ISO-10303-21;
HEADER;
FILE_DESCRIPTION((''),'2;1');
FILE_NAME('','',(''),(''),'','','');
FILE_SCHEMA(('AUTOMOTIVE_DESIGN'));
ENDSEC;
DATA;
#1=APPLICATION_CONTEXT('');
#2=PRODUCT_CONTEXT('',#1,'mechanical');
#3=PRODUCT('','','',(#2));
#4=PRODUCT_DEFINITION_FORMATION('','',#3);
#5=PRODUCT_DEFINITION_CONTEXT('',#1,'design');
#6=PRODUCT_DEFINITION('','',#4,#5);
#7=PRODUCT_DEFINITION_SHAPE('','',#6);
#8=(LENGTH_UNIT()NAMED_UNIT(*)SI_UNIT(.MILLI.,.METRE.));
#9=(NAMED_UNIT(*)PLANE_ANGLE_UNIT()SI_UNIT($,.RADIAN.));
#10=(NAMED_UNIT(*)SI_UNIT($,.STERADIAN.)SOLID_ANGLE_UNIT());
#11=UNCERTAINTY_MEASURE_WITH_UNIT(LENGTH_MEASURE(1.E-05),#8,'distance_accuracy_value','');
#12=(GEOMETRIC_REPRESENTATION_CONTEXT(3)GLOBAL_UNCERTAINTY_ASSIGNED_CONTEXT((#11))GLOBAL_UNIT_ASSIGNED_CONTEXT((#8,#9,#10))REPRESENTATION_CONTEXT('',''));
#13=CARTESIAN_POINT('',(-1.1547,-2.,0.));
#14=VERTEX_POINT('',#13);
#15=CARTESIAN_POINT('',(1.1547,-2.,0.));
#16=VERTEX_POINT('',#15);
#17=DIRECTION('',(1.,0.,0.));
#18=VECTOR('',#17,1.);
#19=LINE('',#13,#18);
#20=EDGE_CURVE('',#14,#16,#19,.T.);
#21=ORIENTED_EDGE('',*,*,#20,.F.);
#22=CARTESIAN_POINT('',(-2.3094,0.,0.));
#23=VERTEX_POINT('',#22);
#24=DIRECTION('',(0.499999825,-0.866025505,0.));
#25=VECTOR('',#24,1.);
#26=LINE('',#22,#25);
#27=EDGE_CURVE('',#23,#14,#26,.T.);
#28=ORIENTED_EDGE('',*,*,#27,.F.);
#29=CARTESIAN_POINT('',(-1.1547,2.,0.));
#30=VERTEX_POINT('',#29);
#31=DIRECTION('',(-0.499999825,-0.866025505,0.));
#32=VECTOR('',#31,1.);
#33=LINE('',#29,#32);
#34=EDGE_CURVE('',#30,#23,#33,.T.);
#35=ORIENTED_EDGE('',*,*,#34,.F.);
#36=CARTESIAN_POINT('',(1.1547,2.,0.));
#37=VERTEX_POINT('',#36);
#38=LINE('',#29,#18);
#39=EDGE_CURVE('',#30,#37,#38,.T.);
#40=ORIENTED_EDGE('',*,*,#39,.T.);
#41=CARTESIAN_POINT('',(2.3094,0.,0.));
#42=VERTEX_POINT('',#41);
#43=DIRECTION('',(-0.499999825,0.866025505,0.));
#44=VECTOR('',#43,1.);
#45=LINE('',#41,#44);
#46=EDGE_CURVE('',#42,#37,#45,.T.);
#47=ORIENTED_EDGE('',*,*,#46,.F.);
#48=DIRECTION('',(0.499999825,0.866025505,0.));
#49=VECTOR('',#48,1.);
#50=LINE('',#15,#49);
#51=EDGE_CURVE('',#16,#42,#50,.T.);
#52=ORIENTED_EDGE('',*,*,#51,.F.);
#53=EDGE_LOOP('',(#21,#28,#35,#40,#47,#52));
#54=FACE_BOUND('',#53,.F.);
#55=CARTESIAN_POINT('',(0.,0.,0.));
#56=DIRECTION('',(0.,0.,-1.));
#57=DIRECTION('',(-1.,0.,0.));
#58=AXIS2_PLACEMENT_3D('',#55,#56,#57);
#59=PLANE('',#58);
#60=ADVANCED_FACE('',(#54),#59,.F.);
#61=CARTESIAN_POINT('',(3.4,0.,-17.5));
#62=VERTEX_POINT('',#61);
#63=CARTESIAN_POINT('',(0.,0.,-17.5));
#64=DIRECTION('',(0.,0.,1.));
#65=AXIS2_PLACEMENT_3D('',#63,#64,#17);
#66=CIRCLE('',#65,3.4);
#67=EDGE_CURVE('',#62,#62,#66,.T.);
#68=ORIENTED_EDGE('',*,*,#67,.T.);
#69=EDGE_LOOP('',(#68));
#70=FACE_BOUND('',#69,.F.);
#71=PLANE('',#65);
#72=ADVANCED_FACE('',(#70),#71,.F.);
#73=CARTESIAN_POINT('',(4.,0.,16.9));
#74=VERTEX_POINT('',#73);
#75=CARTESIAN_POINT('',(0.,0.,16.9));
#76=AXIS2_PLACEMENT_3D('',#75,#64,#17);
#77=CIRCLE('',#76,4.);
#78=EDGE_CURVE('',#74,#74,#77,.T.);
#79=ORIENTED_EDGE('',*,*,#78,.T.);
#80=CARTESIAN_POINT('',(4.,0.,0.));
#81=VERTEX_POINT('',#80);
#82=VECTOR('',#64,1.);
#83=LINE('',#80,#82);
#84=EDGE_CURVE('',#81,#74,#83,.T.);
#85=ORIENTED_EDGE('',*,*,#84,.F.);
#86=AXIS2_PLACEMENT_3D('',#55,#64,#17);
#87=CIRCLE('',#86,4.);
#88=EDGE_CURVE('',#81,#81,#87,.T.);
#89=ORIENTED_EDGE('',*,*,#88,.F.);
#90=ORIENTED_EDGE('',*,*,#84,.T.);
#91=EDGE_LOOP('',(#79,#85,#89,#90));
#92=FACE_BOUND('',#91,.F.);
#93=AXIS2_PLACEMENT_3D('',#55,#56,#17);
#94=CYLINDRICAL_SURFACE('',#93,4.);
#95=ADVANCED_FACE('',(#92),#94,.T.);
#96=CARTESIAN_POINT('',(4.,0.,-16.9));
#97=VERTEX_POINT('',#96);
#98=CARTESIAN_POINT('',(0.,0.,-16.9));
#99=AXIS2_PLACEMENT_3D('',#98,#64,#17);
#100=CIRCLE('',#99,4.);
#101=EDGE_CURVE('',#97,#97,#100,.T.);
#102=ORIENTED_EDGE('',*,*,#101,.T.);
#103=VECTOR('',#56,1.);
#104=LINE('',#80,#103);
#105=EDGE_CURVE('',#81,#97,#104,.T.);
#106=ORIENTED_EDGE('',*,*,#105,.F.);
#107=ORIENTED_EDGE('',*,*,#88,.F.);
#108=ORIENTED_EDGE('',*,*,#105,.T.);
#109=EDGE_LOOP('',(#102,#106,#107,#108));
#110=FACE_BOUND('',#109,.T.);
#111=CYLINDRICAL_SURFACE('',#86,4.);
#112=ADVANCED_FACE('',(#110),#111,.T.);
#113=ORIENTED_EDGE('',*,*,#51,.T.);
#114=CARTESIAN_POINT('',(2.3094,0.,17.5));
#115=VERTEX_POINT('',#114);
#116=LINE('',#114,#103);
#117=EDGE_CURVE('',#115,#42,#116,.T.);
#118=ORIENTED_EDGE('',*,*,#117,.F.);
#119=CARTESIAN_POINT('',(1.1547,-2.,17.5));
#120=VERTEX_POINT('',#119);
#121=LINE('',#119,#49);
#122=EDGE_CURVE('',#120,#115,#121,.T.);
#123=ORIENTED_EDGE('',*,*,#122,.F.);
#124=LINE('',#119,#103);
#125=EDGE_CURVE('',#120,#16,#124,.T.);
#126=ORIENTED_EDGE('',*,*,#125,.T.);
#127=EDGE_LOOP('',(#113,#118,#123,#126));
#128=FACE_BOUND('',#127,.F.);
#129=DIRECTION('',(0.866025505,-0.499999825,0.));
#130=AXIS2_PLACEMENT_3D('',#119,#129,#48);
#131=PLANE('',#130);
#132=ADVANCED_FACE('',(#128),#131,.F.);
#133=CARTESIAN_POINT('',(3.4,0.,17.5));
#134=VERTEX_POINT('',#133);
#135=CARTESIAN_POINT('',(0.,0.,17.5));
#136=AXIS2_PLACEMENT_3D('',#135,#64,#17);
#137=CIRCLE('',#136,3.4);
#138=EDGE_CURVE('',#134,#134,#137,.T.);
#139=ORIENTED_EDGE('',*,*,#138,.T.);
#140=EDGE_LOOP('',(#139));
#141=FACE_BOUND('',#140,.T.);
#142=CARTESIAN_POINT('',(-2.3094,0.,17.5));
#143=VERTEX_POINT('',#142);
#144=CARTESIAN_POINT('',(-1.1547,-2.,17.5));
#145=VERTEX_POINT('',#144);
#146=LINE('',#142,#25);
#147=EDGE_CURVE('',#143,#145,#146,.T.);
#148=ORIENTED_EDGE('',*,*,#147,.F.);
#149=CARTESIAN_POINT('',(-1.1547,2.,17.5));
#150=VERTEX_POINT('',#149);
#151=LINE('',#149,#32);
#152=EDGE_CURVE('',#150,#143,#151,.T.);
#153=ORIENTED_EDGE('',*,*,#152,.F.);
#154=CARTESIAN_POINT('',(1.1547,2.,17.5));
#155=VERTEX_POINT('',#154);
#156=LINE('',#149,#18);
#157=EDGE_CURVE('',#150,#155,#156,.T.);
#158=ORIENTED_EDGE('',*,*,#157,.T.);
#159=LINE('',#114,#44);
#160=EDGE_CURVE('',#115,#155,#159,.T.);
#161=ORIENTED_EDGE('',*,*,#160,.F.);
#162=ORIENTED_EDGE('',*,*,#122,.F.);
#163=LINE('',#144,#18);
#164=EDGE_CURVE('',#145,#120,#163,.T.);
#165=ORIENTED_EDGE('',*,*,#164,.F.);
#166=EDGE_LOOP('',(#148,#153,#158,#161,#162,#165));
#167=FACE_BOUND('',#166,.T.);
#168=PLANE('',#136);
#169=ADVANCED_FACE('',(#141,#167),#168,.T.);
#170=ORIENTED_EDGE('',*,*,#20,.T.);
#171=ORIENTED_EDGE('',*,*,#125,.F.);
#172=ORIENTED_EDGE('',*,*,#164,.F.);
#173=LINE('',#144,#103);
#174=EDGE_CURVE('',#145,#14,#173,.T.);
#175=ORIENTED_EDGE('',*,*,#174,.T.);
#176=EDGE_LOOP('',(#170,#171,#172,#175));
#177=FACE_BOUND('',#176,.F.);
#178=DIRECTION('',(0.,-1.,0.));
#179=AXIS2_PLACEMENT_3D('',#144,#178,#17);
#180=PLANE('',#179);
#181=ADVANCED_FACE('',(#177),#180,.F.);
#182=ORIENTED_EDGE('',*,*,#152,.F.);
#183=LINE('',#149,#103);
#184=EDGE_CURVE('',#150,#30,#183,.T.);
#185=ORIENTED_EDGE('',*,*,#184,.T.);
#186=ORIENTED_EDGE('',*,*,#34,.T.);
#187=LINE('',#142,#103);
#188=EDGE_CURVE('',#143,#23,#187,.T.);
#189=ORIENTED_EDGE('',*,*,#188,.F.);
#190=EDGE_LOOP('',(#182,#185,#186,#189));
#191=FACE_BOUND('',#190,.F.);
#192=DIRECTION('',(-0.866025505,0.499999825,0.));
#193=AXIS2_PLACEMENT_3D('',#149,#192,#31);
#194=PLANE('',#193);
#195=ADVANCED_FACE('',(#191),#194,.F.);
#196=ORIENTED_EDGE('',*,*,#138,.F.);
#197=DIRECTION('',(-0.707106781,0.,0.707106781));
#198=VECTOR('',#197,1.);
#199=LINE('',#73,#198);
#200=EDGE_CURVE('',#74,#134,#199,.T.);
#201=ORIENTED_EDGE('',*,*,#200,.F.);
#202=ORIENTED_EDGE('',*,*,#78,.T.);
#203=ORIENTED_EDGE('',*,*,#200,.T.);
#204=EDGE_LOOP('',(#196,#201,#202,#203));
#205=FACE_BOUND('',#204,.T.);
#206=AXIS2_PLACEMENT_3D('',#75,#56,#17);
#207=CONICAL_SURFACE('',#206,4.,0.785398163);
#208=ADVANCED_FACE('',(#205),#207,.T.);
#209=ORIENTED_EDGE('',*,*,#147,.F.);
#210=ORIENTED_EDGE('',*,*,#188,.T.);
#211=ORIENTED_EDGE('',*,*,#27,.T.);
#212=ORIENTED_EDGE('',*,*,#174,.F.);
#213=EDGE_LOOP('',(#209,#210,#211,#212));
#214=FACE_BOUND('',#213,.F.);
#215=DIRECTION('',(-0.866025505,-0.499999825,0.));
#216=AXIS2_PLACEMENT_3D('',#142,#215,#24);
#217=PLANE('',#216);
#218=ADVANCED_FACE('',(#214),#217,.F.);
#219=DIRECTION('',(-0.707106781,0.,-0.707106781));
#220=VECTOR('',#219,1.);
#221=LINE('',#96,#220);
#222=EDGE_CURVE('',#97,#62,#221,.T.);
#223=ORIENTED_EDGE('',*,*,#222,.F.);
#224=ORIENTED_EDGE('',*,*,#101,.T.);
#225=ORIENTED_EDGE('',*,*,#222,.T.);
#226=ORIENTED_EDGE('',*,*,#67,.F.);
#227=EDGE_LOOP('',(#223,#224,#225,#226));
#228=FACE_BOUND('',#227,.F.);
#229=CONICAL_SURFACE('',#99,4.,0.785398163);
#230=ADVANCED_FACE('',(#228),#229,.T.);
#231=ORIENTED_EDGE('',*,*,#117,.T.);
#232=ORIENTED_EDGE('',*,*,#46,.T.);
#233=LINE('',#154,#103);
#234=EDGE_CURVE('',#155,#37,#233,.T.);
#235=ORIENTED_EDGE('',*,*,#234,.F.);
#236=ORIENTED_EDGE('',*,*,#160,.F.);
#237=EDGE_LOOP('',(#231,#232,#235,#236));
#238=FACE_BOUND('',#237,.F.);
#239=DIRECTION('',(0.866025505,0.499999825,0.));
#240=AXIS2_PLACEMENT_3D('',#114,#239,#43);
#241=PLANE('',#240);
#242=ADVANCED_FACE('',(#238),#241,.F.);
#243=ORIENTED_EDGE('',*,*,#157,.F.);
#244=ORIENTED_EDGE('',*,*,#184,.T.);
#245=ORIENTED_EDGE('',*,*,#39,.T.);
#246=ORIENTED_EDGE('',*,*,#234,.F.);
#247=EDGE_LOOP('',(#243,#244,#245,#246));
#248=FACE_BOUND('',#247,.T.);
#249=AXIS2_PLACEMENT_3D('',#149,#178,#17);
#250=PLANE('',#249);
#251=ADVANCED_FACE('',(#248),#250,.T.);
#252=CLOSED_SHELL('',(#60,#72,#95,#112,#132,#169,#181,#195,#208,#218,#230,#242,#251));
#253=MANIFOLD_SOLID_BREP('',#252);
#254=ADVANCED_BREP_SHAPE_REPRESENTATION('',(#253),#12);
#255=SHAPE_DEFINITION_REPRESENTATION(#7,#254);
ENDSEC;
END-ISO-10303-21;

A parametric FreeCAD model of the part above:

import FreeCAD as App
import Part
import Sketcher
from FreeCAD import Vector
Q = App.Units.Quantity


def edges_at(feature, points):
    """Names of the edges that pass closest to the given points."""
    edges = feature.Shape.Edges
    near = lambda p: min(range(len(edges)), key=lambda i: edges[i].distToShape(Part.Vertex(*p))[0])
    return sorted({f"Edge{near(p) + 1}" for p in points})


def add_polygon(sketch, points):
    """Adds a closed chain of lines whose ends are joined by coincident constraints."""
    first, n = sketch.GeometryCount, len(points)
    for a, b in zip(points, points[1:] + points[:1]):
        sketch.addGeometry(Part.LineSegment(App.Vector(*a, 0), App.Vector(*b, 0)), False)
    for i in range(n):
        sketch.addConstraint(Sketcher.Constraint("Coincident", first + i, 2, first + (i + 1) % n, 1))

doc = App.newDocument("Part")
body = doc.addObject("PartDesign::Body", "Body")

sketch1 = body.newObject("Sketcher::SketchObject", "Sketch")
sketch1.AttachmentSupport = (doc.getObject("XY_Plane"), [""])
sketch1.MapMode = "FlatFace"
sketch1.addGeometry(Part.Circle(Vector(0, 0, 0), Vector(0, 0, 1), 4), False)
sketch1.addConstraint(Sketcher.Constraint("Coincident", 0, 3, -1, 1))
sketch1.addConstraint(Sketcher.Constraint("Diameter", 0, 8.0))
pad1 = body.newObject("PartDesign::Pad", "Pad")
pad1.Profile = sketch1
pad1.Length = 35
pad1.Midplane = True
doc.recompute()

chamfer = body.newObject("PartDesign::Chamfer", "Chamfer")
chamfer.Base = (pad1, edges_at(pad1, [(-4, 0, -17.5), (-4, 0, 17.5)]))
chamfer.Size = 0.6

sketch2 = body.newObject("Sketcher::SketchObject", "Sketch001")
sketch2.AttachmentSupport = (doc.getObject("XY_Plane"), [""])
sketch2.MapMode = "FlatFace"
sketch2.AttachmentOffset = App.Placement(Vector(0, 0, 17.5), App.Rotation())
add_polygon(sketch2, [(1.1547, 2), (-1.1547, 2), (-2.3094, 0), (-1.1547, -2), (1.1547, -2), (2.3094, 0)])
sketch2.addConstraint(Sketcher.Constraint("Horizontal", 0))
sketch2.addConstraint(Sketcher.Constraint("Horizontal", 3))
sketch2.addConstraint(Sketcher.Constraint("Symmetric", 0, 2, 3, 2, -1, 1))
sketch2.addConstraint(Sketcher.Constraint("Symmetric", 1, 2, 4, 2, -1, 1))
sketch2.addConstraint(Sketcher.Constraint("PointOnObject", 1, 2, -1))
sketch2.addConstraint(Sketcher.Constraint("Parallel", 2, 5))
sketch2.addConstraint(Sketcher.Constraint("Vertical", 0, 2, 2, 2))
sketch2.addConstraint(Sketcher.Constraint("Angle", 1, Q("-120 deg")))
sketch2.addConstraint(Sketcher.Constraint("DistanceY", -1, 1, 0, 2, 2.0))
sketch2.addConstraint(Sketcher.Constraint("DistanceX", 0, 2, 0, 1, 2.3094))
pocket1 = body.newObject("PartDesign::Pocket", "Pocket")
pocket1.Profile = sketch2
pocket1.Length = 17.5

doc.recompute()
